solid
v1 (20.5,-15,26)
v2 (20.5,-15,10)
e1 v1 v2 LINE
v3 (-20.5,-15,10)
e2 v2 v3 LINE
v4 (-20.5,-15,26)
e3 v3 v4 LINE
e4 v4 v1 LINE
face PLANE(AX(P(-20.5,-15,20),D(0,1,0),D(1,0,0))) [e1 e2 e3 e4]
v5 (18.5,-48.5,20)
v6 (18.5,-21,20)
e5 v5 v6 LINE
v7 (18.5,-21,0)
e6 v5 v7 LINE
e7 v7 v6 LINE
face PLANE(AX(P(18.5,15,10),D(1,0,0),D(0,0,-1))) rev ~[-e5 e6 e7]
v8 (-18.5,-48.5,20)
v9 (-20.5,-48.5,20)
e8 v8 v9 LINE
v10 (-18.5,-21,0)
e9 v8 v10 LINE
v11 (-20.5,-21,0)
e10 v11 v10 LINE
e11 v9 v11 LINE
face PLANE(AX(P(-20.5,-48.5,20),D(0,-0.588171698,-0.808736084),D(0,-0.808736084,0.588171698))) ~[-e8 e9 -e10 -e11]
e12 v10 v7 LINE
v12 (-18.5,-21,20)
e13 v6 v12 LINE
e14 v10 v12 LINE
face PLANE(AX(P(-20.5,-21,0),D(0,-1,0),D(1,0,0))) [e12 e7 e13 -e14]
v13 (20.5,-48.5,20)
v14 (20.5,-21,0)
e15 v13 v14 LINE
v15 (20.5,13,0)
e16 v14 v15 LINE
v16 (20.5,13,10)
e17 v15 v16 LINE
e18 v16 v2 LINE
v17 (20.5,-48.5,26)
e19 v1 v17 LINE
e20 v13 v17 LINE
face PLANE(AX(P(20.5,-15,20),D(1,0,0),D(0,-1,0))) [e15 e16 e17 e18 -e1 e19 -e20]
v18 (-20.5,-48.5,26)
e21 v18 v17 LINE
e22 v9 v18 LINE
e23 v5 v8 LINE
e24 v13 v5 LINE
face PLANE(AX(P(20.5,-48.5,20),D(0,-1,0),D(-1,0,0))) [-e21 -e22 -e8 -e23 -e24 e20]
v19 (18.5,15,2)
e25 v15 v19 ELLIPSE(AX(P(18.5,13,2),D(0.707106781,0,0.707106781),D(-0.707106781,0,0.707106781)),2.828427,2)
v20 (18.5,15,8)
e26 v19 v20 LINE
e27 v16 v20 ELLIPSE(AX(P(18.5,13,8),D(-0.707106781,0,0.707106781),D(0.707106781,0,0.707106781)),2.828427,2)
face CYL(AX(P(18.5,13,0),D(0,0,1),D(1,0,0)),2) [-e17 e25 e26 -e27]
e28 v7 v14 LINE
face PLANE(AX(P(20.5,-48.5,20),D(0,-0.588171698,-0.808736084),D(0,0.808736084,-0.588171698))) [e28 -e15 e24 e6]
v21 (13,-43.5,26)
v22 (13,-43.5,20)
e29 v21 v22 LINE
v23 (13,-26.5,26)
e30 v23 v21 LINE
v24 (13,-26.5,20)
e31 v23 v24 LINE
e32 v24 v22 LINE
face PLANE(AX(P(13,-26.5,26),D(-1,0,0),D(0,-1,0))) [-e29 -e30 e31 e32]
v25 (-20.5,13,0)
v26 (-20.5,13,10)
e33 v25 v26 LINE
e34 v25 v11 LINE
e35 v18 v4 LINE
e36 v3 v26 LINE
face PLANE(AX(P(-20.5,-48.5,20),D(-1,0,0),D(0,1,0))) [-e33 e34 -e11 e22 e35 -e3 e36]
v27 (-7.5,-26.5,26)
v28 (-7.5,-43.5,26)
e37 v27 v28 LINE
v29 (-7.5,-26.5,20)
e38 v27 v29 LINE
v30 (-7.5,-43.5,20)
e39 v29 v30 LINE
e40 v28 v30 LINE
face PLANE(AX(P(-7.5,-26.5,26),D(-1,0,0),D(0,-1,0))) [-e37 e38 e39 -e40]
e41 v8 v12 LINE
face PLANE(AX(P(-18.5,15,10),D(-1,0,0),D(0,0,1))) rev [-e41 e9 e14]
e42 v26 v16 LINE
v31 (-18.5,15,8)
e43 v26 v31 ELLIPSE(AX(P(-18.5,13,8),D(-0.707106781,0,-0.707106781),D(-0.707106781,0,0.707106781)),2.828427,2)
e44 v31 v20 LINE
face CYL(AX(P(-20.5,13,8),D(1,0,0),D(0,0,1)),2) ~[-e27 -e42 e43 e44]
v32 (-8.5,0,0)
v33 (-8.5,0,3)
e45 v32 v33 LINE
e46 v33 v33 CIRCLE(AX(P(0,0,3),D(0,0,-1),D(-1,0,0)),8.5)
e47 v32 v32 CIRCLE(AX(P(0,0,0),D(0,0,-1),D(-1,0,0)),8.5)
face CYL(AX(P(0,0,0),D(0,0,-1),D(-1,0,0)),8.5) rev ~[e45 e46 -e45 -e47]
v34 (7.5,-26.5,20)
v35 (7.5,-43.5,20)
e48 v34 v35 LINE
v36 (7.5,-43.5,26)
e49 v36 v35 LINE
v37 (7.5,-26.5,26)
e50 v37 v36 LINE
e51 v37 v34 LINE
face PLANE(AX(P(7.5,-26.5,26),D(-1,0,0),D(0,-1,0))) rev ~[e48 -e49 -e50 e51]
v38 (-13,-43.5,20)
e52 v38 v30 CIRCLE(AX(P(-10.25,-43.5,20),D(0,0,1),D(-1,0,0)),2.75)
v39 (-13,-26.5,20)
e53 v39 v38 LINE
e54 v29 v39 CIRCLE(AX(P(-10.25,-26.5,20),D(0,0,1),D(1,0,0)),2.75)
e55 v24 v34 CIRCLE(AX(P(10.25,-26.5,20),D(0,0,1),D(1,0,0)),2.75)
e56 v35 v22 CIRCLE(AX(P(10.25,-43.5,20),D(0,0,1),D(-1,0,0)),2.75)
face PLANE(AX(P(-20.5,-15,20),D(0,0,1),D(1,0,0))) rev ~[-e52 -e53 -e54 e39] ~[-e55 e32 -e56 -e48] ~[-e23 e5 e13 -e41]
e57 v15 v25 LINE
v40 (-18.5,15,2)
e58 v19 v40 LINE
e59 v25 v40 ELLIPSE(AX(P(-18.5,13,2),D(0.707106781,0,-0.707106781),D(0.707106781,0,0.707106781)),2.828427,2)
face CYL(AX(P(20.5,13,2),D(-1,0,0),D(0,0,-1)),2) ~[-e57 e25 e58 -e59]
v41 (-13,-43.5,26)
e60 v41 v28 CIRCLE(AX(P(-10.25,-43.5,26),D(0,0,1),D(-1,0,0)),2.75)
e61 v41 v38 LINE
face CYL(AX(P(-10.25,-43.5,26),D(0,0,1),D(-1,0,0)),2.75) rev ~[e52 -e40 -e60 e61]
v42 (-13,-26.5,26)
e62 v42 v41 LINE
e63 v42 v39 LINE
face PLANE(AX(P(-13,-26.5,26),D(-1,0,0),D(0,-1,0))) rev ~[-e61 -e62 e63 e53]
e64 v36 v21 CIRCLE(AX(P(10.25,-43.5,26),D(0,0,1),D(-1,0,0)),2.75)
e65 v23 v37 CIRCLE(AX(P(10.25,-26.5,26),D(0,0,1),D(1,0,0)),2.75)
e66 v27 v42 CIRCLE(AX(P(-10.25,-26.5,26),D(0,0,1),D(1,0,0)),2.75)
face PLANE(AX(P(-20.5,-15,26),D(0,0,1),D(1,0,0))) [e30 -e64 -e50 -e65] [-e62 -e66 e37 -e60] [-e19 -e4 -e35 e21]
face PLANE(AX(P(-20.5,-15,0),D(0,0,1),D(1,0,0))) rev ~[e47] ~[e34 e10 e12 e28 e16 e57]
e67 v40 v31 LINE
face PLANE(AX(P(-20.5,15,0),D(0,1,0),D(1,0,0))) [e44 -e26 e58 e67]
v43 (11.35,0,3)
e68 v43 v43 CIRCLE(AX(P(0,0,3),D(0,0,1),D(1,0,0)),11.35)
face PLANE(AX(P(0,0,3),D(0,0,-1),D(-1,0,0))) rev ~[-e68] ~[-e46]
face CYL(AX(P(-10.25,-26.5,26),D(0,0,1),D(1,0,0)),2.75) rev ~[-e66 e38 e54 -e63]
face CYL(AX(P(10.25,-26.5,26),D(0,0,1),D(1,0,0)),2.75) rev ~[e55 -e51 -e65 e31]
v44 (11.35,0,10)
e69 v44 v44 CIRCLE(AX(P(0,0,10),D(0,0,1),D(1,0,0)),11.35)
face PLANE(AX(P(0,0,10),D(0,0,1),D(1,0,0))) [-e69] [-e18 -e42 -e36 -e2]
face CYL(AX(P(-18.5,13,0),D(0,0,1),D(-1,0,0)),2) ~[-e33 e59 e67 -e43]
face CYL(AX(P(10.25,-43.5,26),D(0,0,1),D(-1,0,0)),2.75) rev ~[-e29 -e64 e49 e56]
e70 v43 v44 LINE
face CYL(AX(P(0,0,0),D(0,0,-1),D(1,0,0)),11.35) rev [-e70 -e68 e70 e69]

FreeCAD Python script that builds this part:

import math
import FreeCAD as App
import Part
import Sketcher
Q = App.Units.Quantity


def edges_at(feature, points):
    """Names of the edges that pass closest to the given points."""
    edges = feature.Shape.Edges
    near = lambda p: min(range(len(edges)), key=lambda i: edges[i].distToShape(Part.Vertex(*p))[0])
    return sorted({f"Edge{near(p) + 1}" for p in points})


def add_polygon(sketch, points):
    """Adds a closed chain of lines whose ends are joined by coincident constraints."""
    first, n = sketch.GeometryCount, len(points)
    for a, b in zip(points, points[1:] + points[:1]):
        sketch.addGeometry(Part.LineSegment(App.Vector(*a, 0), App.Vector(*b, 0)), False)
    for i in range(n):
        sketch.addConstraint(Sketcher.Constraint("Coincident", first + i, 2, first + (i + 1) % n, 1))

doc = App.newDocument("Part")
params = doc.addObject("Spreadsheet::Sheet", "Params")
for row, (alias, value) in enumerate([
    ("sketch1_diameter", "22.7 mm"),
    ("sketch1_width", "41 mm"),
    ("sketch1_height", "30 mm"),
    ("pad1_length", "10 mm"),
    ("sketch2_diameter", "17 mm"),
    ("sketch2_diameter2", "22.7 mm"),
    ("pad2_length", "3 mm"),
    ("sketch3_width", "41 mm"),
    ("sketch3_height", "20 mm"),
    ("pad3_length", "6 mm"),
    ("sketch4_width", "41 mm"),
    ("sketch4_height", "33.5 mm"),
    ("pad4_length", "6 mm"),
    ("sketch5_width", "6 mm"),
    ("sketch5_height", "26 mm"),
    ("sketch5_width2", "33.5 mm"),
    ("pad5_length", "2 mm"),
    ("fillet_radius", "2 mm"),
    ("sketch6_radius", "2.75 mm"),
    ("sketch6_height", "17 mm"),
], start=1):
    params.set(f"A{row}", alias)
    params.set(f"B{row}", "=" + value)
    params.setAlias(f"B{row}", alias)

body = doc.addObject("PartDesign::Body", "Body")

# Sketch on XY plane
sketch1 = doc.addObject("Sketcher::SketchObject", "Sketch")
body.addObject(sketch1)
sketch1.AttachmentSupport = (doc.XY_Plane, [""])
sketch1.MapMode = "FlatFace"
add_polygon(sketch1, [(-20, 15), (-20, -15), (20, -15), (20, 15)])  # lines 0-3
sketch1.addGeometry(Part.Circle(App.Vector(0, 0, 0), App.Vector(0, 0, 1), 11), False)  # 4
sketch1.addConstraint(Sketcher.Constraint("Vertical", 0))
sketch1.addConstraint(Sketcher.Constraint("Horizontal", 1))
sketch1.addConstraint(Sketcher.Constraint("Vertical", 2))
sketch1.addConstraint(Sketcher.Constraint("Horizontal", 3))
sketch1.addConstraint(Sketcher.Constraint("Coincident", 4, 3, -1, 1))
sketch1.addConstraint(Sketcher.Constraint("Symmetric", 0, 2, 2, 2, -1, 1))
sketch1.addConstraint(Sketcher.Constraint("Diameter", 4, Q("22.7 mm")))
sketch1.addConstraint(Sketcher.Constraint("DistanceX", 1, 1, 1, 2, Q("41 mm")))
sketch1.addConstraint(Sketcher.Constraint("DistanceY", 0, 2, 0, 1, Q("30 mm")))
sketch1.setExpression("Constraints[10]", "Params.sketch1_diameter")
sketch1.setExpression("Constraints[11]", "Params.sketch1_width")
sketch1.setExpression("Constraints[12]", "Params.sketch1_height")
pad1 = doc.addObject("PartDesign::Pad", "Pad")
body.addObject(pad1)
pad1.Profile = sketch1
pad1.setExpression("Length", "Params.pad1_length")

# Sketch on XY plane
sketch2 = doc.addObject("Sketcher::SketchObject", "Sketch001")
body.addObject(sketch2)
sketch2.AttachmentSupport = (doc.XY_Plane, [""])
sketch2.MapMode = "FlatFace"
sketch2.addGeometry(Part.Circle(App.Vector(0, 0, 0), App.Vector(0, 0, 1), 11), False)
sketch2.addGeometry(Part.Circle(App.Vector(0, 0, 0), App.Vector(0, 0, 1), 8), False)
sketch2.addConstraint(Sketcher.Constraint("Coincident", 0, 3, -1, 1))
sketch2.addConstraint(Sketcher.Constraint("Coincident", 1, 3, -1, 1))
sketch2.addConstraint(Sketcher.Constraint("Diameter", 1, Q("17 mm")))
sketch2.addConstraint(Sketcher.Constraint("Diameter", 0, Q("22.7 mm")))
sketch2.setExpression("Constraints[2]", "Params.sketch2_diameter")
sketch2.setExpression("Constraints[3]", "Params.sketch2_diameter2")
pad2 = doc.addObject("PartDesign::Pad", "Pad001")
body.addObject(pad2)
pad2.Profile = sketch2
pad2.setExpression("Length", "Params.pad2_length")

# Sketch on XZ plane
sketch3 = doc.addObject("Sketcher::SketchObject", "Sketch002")
body.addObject(sketch3)
sketch3.AttachmentSupport = (doc.XZ_Plane, [""])
sketch3.MapMode = "FlatFace"
sketch3.AttachmentOffset = App.Placement(App.Vector(0, 0, 15), App.Rotation())
add_polygon(sketch3, [(-20, 20), (-20, 0), (20, 0), (20, 20)])  # lines 0-3
sketch3.addConstraint(Sketcher.Constraint("Vertical", 0))
sketch3.addConstraint(Sketcher.Constraint("Horizontal", 1))
sketch3.addConstraint(Sketcher.Constraint("Vertical", 2))
sketch3.addConstraint(Sketcher.Constraint("Horizontal", 3))
sketch3.addConstraint(Sketcher.Constraint("Symmetric", 0, 2, 1, 2, -1, 1))
sketch3.addConstraint(Sketcher.Constraint("DistanceX", 1, 1, 1, 2, Q("41 mm")))
sketch3.addConstraint(Sketcher.Constraint("DistanceY", 0, 2, 0, 1, Q("20 mm")))
sketch3.setExpression("Constraints[9]", "Params.sketch3_width")
sketch3.setExpression("Constraints[10]", "Params.sketch3_height")
pad3 = doc.addObject("PartDesign::Pad", "Pad002")
body.addObject(pad3)
pad3.Profile = sketch3
pad3.setExpression("Length", "Params.pad3_length")

# Sketch on XY plane
sketch4 = doc.addObject("Sketcher::SketchObject", "Sketch003")
body.addObject(sketch4)
sketch4.AttachmentSupport = (doc.XY_Plane, [""])
sketch4.MapMode = "FlatFace"
sketch4.AttachmentOffset = App.Placement(App.Vector(0, 0, 20), App.Rotation())
add_polygon(sketch4, [(20, -15), (-20, -15), (-20, -48), (20, -48)])  # lines 0-3
sketch4.addConstraint(Sketcher.Constraint("Horizontal", 0))
sketch4.addConstraint(Sketcher.Constraint("Vertical", 1))
sketch4.addConstraint(Sketcher.Constraint("Horizontal", 2))
sketch4.addConstraint(Sketcher.Constraint("Vertical", 3))
sketch4.addConstraint(Sketcher.Constraint("DistanceX", 0, 2, 0, 1, Q("41 mm")))
sketch4.addConstraint(Sketcher.Constraint("DistanceY", 1, 2, 1, 1, Q("33.5 mm")))
sketch4.addConstraint(Sketcher.Constraint("DistanceY", 0, 2, -1, 1, Q("15 mm")))
sketch4.addConstraint(Sketcher.Constraint("DistanceX", 0, 2, -1, 1, Q("20.5 mm")))
sketch4.setExpression("Constraints[8]", "Params.sketch4_width")
sketch4.setExpression("Constraints[9]", "Params.sketch4_height")
pad4 = doc.addObject("PartDesign::Pad", "Pad003")
body.addObject(pad4)
pad4.Profile = sketch4
pad4.setExpression("Length", "Params.pad4_length")

# Sketch on YZ plane
sketch5 = doc.addObject("Sketcher::SketchObject", "Sketch004")
body.addObject(sketch5)
sketch5.AttachmentSupport = (doc.YZ_Plane, [""])
sketch5.MapMode = "FlatFace"
sketch5.AttachmentOffset = App.Placement(App.Vector(0, 0, 20.5), App.Rotation())
add_polygon(sketch5, [(-48, 26), (-48, 20), (-21, 0), (-15, 0), (-15, 26)])  # lines 0-4
sketch5.addConstraint(Sketcher.Constraint("Vertical", 0))
sketch5.addConstraint(Sketcher.Constraint("Horizontal", 2))
sketch5.addConstraint(Sketcher.Constraint("Vertical", 3))
sketch5.addConstraint(Sketcher.Constraint("Horizontal", 4))
sketch5.addConstraint(Sketcher.Constraint("PointOnObject", 1, 2, -1))
sketch5.addConstraint(Sketcher.Constraint("Equal", 2, 0))
sketch5.addConstraint(Sketcher.Constraint("DistanceX", 2, 1, 2, 2, Q("6 mm")))
sketch5.addConstraint(Sketcher.Constraint("DistanceY", 3, 1, 3, 2, Q("26 mm")))
sketch5.addConstraint(Sketcher.Constraint("DistanceX", 4, 2, 4, 1, Q("33.5 mm")))
sketch5.addConstraint(Sketcher.Constraint("DistanceX", 1, 2, -1, 1, Q("21 mm")))
sketch5.setExpression("Constraints[11]", "Params.sketch5_width")
sketch5.setExpression("Constraints[12]", "Params.sketch5_height")
sketch5.setExpression("Constraints[13]", "Params.sketch5_width2")
pad5 = doc.addObject("PartDesign::Pad", "Pad004")
body.addObject(pad5)
pad5.Profile = sketch5
pad5.setExpression("Length", "Params.pad5_length")
pad5.Reversed = True
doc.recompute()

mirrored = doc.addObject("PartDesign::Mirrored", "Mirrored")
body.addObject(mirrored)
mirrored.Originals = [pad5]
mirrored.MirrorPlane = (doc.YZ_Plane, [""])
body.Tip = mirrored
doc.recompute()

fillet = doc.addObject("PartDesign::Fillet", "Fillet")
body.addObject(fillet)
fillet.Base = (mirrored, edges_at(mirrored, [
    (20.5, 15, 5),
    (-20.5, 15, 5),
    (0, 15, 10),
    (0, 15, 0),
]))
fillet.setExpression("Radius", "Params.fillet_radius")

# Sketch on XY plane
sketch6 = doc.addObject("Sketcher::SketchObject", "Sketch005")
body.addObject(sketch6)
sketch6.AttachmentSupport = (doc.XY_Plane, [""])
sketch6.MapMode = "FlatFace"
sketch6.AttachmentOffset = App.Placement(App.Vector(0, 0, 26), App.Rotation())
sketch6.addGeometry(Part.LineSegment(App.Vector(-7.5, -43.5, 0), App.Vector(-7.5, -26.5, 0)), False)
sketch6.addGeometry(Part.ArcOfCircle(Part.Circle(App.Vector(-10.2, -26.5, 0), App.Vector(0, 0, 1), 2.8), math.radians(0), math.radians(180)), False)
sketch6.addGeometry(Part.LineSegment(App.Vector(-13, -26.5, 0), App.Vector(-13, -43.5, 0)), False)
sketch6.addGeometry(Part.ArcOfCircle(Part.Circle(App.Vector(-10.2, -43.5, 0), App.Vector(0, 0, 1), 2.8), math.radians(180), math.radians(360)), False)
sketch6.addGeometry(Part.LineSegment(App.Vector(13, -43.5, 0), App.Vector(13, -26.5, 0)), False)
sketch6.addGeometry(Part.ArcOfCircle(Part.Circle(App.Vector(10.2, -26.5, 0), App.Vector(0, 0, 1), 2.8), math.radians(0), math.radians(180)), False)
sketch6.addGeometry(Part.LineSegment(App.Vector(7.5, -26.5, 0), App.Vector(7.5, -43.5, 0)), False)
sketch6.addGeometry(Part.ArcOfCircle(Part.Circle(App.Vector(10.2, -43.5, 0), App.Vector(0, 0, 1), 2.8), math.radians(180), math.radians(360)), False)
sketch6.addConstraint(Sketcher.Constraint("Tangent", 0, 2, 1, 1))
sketch6.addConstraint(Sketcher.Constraint("Tangent", 1, 2, 2, 1))
sketch6.addConstraint(Sketcher.Constraint("Tangent", 2, 2, 3, 1))
sketch6.addConstraint(Sketcher.Constraint("Tangent", 3, 2, 0, 1))
sketch6.addConstraint(Sketcher.Constraint("Tangent", 4, 2, 5, 1))
sketch6.addConstraint(Sketcher.Constraint("Tangent", 5, 2, 6, 1))
sketch6.addConstraint(Sketcher.Constraint("Tangent", 6, 2, 7, 1))
sketch6.addConstraint(Sketcher.Constraint("Tangent", 7, 2, 4, 1))
sketch6.addConstraint(Sketcher.Constraint("Vertical", 0))
sketch6.addConstraint(Sketcher.Constraint("Vertical", 2))
sketch6.addConstraint(Sketcher.Constraint("Vertical", 4))
sketch6.addConstraint(Sketcher.Constraint("Vertical", 6))
sketch6.addConstraint(Sketcher.Constraint("Equal", 3, 5))
sketch6.addConstraint(Sketcher.Constraint("Symmetric", 1, 3, 5, 3, -2))
sketch6.addConstraint(Sketcher.Constraint("Horizontal", 3, 3, 7, 3))
sketch6.addConstraint(Sketcher.Constraint("Radius", 1, Q("2.75 mm")))
sketch6.addConstraint(Sketcher.Constraint("DistanceY", 0, 1, 0, 2, Q("17 mm")))
sketch6.addConstraint(Sketcher.Constraint("DistanceX", 1, 3, -1, 1, Q("10.25 mm")))
sketch6.addConstraint(Sketcher.Constraint("DistanceY", 1, 3, -1, 1, Q("26.5 mm")))
sketch6.setExpression("Constraints[15]", "Params.sketch6_radius")
sketch6.setExpression("Constraints[16]", "Params.sketch6_height")
pocket1 = doc.addObject("PartDesign::Pocket", "Pocket")
body.addObject(pocket1)
pocket1.Profile = sketch6
pocket1.Type = "ThroughAll"

doc.recompute()
